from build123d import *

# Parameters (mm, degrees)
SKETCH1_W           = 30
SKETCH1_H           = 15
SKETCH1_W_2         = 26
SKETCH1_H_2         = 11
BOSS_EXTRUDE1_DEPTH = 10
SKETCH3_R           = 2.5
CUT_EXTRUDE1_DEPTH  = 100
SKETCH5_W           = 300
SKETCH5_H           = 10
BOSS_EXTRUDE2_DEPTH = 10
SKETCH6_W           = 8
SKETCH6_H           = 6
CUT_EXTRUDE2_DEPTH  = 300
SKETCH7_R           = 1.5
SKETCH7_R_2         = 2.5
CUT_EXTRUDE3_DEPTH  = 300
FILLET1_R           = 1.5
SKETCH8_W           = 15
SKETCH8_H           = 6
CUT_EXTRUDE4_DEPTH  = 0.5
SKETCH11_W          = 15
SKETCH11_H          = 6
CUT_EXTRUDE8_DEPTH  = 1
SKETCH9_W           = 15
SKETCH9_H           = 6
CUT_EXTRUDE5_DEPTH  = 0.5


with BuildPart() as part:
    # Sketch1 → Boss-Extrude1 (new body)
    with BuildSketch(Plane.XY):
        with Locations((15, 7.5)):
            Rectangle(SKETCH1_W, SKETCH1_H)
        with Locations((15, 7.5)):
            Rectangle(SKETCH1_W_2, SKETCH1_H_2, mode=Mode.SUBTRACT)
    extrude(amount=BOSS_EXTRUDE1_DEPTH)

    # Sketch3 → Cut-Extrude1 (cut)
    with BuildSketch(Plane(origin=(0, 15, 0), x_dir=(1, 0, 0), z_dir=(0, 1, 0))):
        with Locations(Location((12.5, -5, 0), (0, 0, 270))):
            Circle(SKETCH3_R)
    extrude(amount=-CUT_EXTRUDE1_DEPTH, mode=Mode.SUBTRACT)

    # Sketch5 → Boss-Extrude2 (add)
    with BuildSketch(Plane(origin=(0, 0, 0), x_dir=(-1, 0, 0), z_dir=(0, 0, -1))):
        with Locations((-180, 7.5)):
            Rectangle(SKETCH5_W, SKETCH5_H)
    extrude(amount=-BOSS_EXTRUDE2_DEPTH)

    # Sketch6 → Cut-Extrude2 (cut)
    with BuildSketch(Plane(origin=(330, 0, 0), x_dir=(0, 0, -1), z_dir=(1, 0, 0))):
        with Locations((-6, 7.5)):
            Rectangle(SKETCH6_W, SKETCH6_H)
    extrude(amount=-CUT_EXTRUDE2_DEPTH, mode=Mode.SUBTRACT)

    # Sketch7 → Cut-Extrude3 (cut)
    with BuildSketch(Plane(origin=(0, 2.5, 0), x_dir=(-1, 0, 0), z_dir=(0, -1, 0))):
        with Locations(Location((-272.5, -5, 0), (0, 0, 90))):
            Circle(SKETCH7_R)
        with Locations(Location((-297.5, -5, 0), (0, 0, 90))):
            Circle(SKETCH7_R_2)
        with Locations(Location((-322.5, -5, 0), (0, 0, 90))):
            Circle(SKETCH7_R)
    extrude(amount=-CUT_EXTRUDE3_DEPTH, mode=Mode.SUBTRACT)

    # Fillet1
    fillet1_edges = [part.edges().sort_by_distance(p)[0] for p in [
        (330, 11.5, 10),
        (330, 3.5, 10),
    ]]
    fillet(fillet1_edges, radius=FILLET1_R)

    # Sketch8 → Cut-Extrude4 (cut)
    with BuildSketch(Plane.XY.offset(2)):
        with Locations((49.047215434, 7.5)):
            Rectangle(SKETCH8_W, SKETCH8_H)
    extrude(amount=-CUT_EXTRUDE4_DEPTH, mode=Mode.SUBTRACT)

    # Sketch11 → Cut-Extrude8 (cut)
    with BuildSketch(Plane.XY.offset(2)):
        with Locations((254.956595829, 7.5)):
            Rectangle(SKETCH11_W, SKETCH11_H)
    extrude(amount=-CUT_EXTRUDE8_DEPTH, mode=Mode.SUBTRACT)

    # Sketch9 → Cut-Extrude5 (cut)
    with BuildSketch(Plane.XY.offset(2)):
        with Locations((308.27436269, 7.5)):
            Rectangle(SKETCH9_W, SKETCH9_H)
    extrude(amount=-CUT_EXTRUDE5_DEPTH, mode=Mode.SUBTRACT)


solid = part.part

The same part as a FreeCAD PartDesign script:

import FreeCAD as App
import Part
import Sketcher
Q = App.Units.Quantity


def edges_at(feature, points):
    """Names of the edges that pass closest to the given points."""
    edges = feature.Shape.Edges
    near = lambda p: min(range(len(edges)), key=lambda i: edges[i].distToShape(Part.Vertex(*p))[0])
    return sorted({f"Edge{near(p) + 1}" for p in points})


def add_polygon(sketch, points):
    """Adds a closed chain of lines whose ends are joined by coincident constraints."""
    first, n = sketch.GeometryCount, len(points)
    for a, b in zip(points, points[1:] + points[:1]):
        sketch.addGeometry(Part.LineSegment(App.Vector(*a, 0), App.Vector(*b, 0)), False)
    for i in range(n):
        sketch.addConstraint(Sketcher.Constraint("Coincident", first + i, 2, first + (i + 1) % n, 1))

doc = App.newDocument("Part")
params = doc.addObject("Spreadsheet::Sheet", "Params")
for row, (alias, value) in enumerate([
    ("sketch1_width", "30 mm"),
    ("sketch1_width2", "26 mm"),
    ("sketch1_height", "15 mm"),
    ("sketch1_height2", "11 mm"),
    ("pad1_length", "10 mm"),
    ("sketch2_diameter", "5 mm"),
    ("pocket1_length", "100 mm"),
    ("sketch3_width", "300 mm"),
    ("sketch3_height", "10 mm"),
    ("pad2_length", "10 mm"),
    ("sketch4_width", "6 mm"),
    ("sketch4_height", "8 mm"),
    ("pocket2_length", "300 mm"),
    ("sketch5_diameter", "3 mm"),
    ("sketch5_diameter2", "5 mm"),
    ("pocket3_length", "300 mm"),
    ("fillet_radius", "1.5 mm"),
    ("sketch6_width", "15 mm"),
    ("sketch6_height", "6 mm"),
    ("pocket4_length", "0.5 mm"),
    ("sketch7_width", "15 mm"),
    ("sketch7_height", "6 mm"),
    ("pocket5_length", "1 mm"),
    ("sketch8_width", "15 mm"),
    ("sketch8_height", "6 mm"),
    ("pocket6_length", "0.5 mm"),
], start=1):
    params.set(f"A{row}", alias)
    params.set(f"B{row}", "=" + value)
    params.setAlias(f"B{row}", alias)

body = doc.addObject("PartDesign::Body", "Body")

sketch1 = body.newObject("Sketcher::SketchObject", "Sketch")
sketch1.AttachmentSupport = (doc.getObject("XY_Plane"), [""])
sketch1.MapMode = "FlatFace"
add_polygon(sketch1, [(0, 15), (0, 0), (30, 0), (30, 15)])
add_polygon(sketch1, [(28, 2), (2, 2), (2, 13), (28, 13)])
sketch1.addConstraint(Sketcher.Constraint("Vertical", 0))
sketch1.addConstraint(Sketcher.Constraint("Horizontal", 1))
sketch1.addConstraint(Sketcher.Constraint("Vertical", 2))
sketch1.addConstraint(Sketcher.Constraint("Horizontal", 3))
sketch1.addConstraint(Sketcher.Constraint("Horizontal", 4))
sketch1.addConstraint(Sketcher.Constraint("Vertical", 5))
sketch1.addConstraint(Sketcher.Constraint("Horizontal", 6))
sketch1.addConstraint(Sketcher.Constraint("Vertical", 7))
sketch1.addConstraint(Sketcher.Constraint("Coincident", 0, 2, -1, 1))
sketch1.addConstraint(Sketcher.Constraint("DistanceX", 1, 1, 1, 2, Q("30 mm")))
sketch1.addConstraint(Sketcher.Constraint("DistanceX", 4, 2, 4, 1, Q("26 mm")))
sketch1.addConstraint(Sketcher.Constraint("DistanceY", 0, 2, 0, 1, Q("15 mm")))
sketch1.addConstraint(Sketcher.Constraint("DistanceY", 5, 1, 5, 2, Q("11 mm")))
sketch1.addConstraint(Sketcher.Constraint("DistanceX", -1, 1, 4, 2, Q("2 mm")))
sketch1.addConstraint(Sketcher.Constraint("DistanceY", -1, 1, 4, 2, Q("2 mm")))
sketch1.setExpression("Constraints[17]", "Params.sketch1_width")
sketch1.setExpression("Constraints[18]", "Params.sketch1_width2")
sketch1.setExpression("Constraints[19]", "Params.sketch1_height")
sketch1.setExpression("Constraints[20]", "Params.sketch1_height2")
pad1 = body.newObject("PartDesign::Pad", "Pad")
pad1.Profile = sketch1
pad1.setExpression("Length", "Params.pad1_length")

sketch2 = body.newObject("Sketcher::SketchObject", "Sketch001")
sketch2.AttachmentSupport = (doc.getObject("XZ_Plane"), [""])
sketch2.MapMode = "FlatFace"
sketch2.AttachmentOffset = App.Placement(App.Vector(0, 0, -15), App.Rotation())
sketch2.addGeometry(Part.Circle(App.Vector(12.5, 5, 0), App.Vector(0, 0, 1), 2.5), False)
sketch2.addConstraint(Sketcher.Constraint("Diameter", 0, Q("5 mm")))
sketch2.addConstraint(Sketcher.Constraint("DistanceY", -1, 1, 0, 3, Q("5 mm")))
sketch2.addConstraint(Sketcher.Constraint("DistanceX", -1, 1, 0, 3, Q("12.5 mm")))
sketch2.setExpression("Constraints[0]", "Params.sketch2_diameter")
pocket1 = body.newObject("PartDesign::Pocket", "Pocket")
pocket1.Profile = sketch2
pocket1.setExpression("Length", "Params.pocket1_length")
pocket1.Reversed = True

sketch3 = body.newObject("Sketcher::SketchObject", "Sketch002")
sketch3.AttachmentSupport = (doc.getObject("XY_Plane"), [""])
sketch3.MapMode = "FlatFace"
add_polygon(sketch3, [(330, 12), (330, 2), (30, 2), (30, 12)])
sketch3.addConstraint(Sketcher.Constraint("Vertical", 0))
sketch3.addConstraint(Sketcher.Constraint("Horizontal", 1))
sketch3.addConstraint(Sketcher.Constraint("Vertical", 2))
sketch3.addConstraint(Sketcher.Constraint("Horizontal", 3))
sketch3.addConstraint(Sketcher.Constraint("DistanceX", 1, 2, 1, 1, Q("300 mm")))
sketch3.addConstraint(Sketcher.Constraint("DistanceY", 0, 2, 0, 1, Q("10 mm")))
sketch3.addConstraint(Sketcher.Constraint("DistanceX", -1, 1, 0, 2, Q("330 mm")))
sketch3.addConstraint(Sketcher.Constraint("DistanceY", -1, 1, 0, 2, Q("2.5 mm")))
sketch3.setExpression("Constraints[8]", "Params.sketch3_width")
sketch3.setExpression("Constraints[9]", "Params.sketch3_height")
pad2 = body.newObject("PartDesign::Pad", "Pad001")
pad2.Profile = sketch3
pad2.setExpression("Length", "Params.pad2_length")

sketch4 = body.newObject("Sketcher::SketchObject", "Sketch003")
sketch4.AttachmentSupport = (doc.getObject("YZ_Plane"), [""])
sketch4.MapMode = "FlatFace"
sketch4.AttachmentOffset = App.Placement(App.Vector(0, 0, 330), App.Rotation())
add_polygon(sketch4, [(10, 10), (4, 10), (4, 2), (10, 2)])
sketch4.addConstraint(Sketcher.Constraint("Horizontal", 0))
sketch4.addConstraint(Sketcher.Constraint("Vertical", 1))
sketch4.addConstraint(Sketcher.Constraint("Horizontal", 2))
sketch4.addConstraint(Sketcher.Constraint("Vertical", 3))
sketch4.addConstraint(Sketcher.Constraint("DistanceX", 0, 2, 0, 1, Q("6 mm")))
sketch4.addConstraint(Sketcher.Constraint("DistanceY", 1, 2, 1, 1, Q("8 mm")))
sketch4.addConstraint(Sketcher.Constraint("DistanceY", -1, 1, 0, 2, Q("10 mm")))
sketch4.addConstraint(Sketcher.Constraint("DistanceX", -1, 1, 0, 2, Q("4.5 mm")))
sketch4.setExpression("Constraints[8]", "Params.sketch4_width")
sketch4.setExpression("Constraints[9]", "Params.sketch4_height")
pocket2 = body.newObject("PartDesign::Pocket", "Pocket001")
pocket2.Profile = sketch4
pocket2.setExpression("Length", "Params.pocket2_length")

sketch5 = body.newObject("Sketcher::SketchObject", "Sketch004")
sketch5.AttachmentSupport = (doc.getObject("XZ_Plane"), [""])
sketch5.MapMode = "FlatFace"
sketch5.AttachmentOffset = App.Placement(App.Vector(0, 0, -2.5), App.Rotation())
sketch5.addGeometry(Part.Circle(App.Vector(272.5, 5, 0), App.Vector(0, 0, 1), 1.5), False)
sketch5.addGeometry(Part.Circle(App.Vector(297.5, 5, 0), App.Vector(0, 0, 1), 2.5), False)
sketch5.addGeometry(Part.Circle(App.Vector(322.5, 5, 0), App.Vector(0, 0, 1), 1.5), False)
sketch5.addConstraint(Sketcher.Constraint("Equal", 0, 2))
sketch5.addConstraint(Sketcher.Constraint("Horizontal", 0, 3, 1, 3))
sketch5.addConstraint(Sketcher.Constraint("Horizontal", 1, 3, 2, 3))
sketch5.addConstraint(Sketcher.Constraint("Diameter", 0, Q("3 mm")))
sketch5.addConstraint(Sketcher.Constraint("Diameter", 1, Q("5 mm")))
sketch5.addConstraint(Sketcher.Constraint("DistanceY", -1, 1, 0, 3, Q("5 mm")))
sketch5.addConstraint(Sketcher.Constraint("DistanceX", 0, 3, 1, 3, Q("25 mm")))
sketch5.addConstraint(Sketcher.Constraint("DistanceX", 1, 3, 2, 3, Q("25 mm")))
sketch5.addConstraint(Sketcher.Constraint("DistanceX", -1, 1, 0, 3, Q("272.5 mm")))
sketch5.setExpression("Constraints[3]", "Params.sketch5_diameter")
sketch5.setExpression("Constraints[4]", "Params.sketch5_diameter2")
pocket3 = body.newObject("PartDesign::Pocket", "Pocket002")
pocket3.Profile = sketch5
pocket3.setExpression("Length", "Params.pocket3_length")
doc.recompute()

fillet = body.newObject("PartDesign::Fillet", "Fillet")
fillet.Base = (pocket3, edges_at(pocket3, [(330, 11.5, 10), (330, 3.5, 10)]))
fillet.setExpression("Radius", "Params.fillet_radius")

sketch6 = body.newObject("Sketcher::SketchObject", "Sketch005")
sketch6.AttachmentSupport = (doc.getObject("XY_Plane"), [""])
sketch6.MapMode = "FlatFace"
sketch6.AttachmentOffset = App.Placement(App.Vector(0, 0, 2), App.Rotation())
add_polygon(sketch6, [(42, 10), (42, 4), (57, 4), (57, 10)])
sketch6.addConstraint(Sketcher.Constraint("Vertical", 0))
sketch6.addConstraint(Sketcher.Constraint("Horizontal", 1))
sketch6.addConstraint(Sketcher.Constraint("Vertical", 2))
sketch6.addConstraint(Sketcher.Constraint("Horizontal", 3))
sketch6.addConstraint(Sketcher.Constraint("DistanceX", 1, 1, 1, 2, Q("15 mm")))
sketch6.addConstraint(Sketcher.Constraint("DistanceY", 0, 2, 0, 1, Q("6 mm")))
sketch6.addConstraint(Sketcher.Constraint("DistanceY", -1, 1, 0, 2, Q("4.5 mm")))
sketch6.addConstraint(Sketcher.Constraint("DistanceX", -1, 1, 0, 2, Q("41.547215 mm")))
sketch6.setExpression("Constraints[8]", "Params.sketch6_width")
sketch6.setExpression("Constraints[9]", "Params.sketch6_height")
pocket4 = body.newObject("PartDesign::Pocket", "Pocket003")
pocket4.Profile = sketch6
pocket4.setExpression("Length", "Params.pocket4_length")

sketch7 = body.newObject("Sketcher::SketchObject", "Sketch006")
sketch7.AttachmentSupport = (doc.getObject("XY_Plane"), [""])
sketch7.MapMode = "FlatFace"
sketch7.AttachmentOffset = App.Placement(App.Vector(0, 0, 2), App.Rotation())
add_polygon(sketch7, [(247, 10), (247, 4), (262, 4), (262, 10)])
sketch7.addConstraint(Sketcher.Constraint("Vertical", 0))
sketch7.addConstraint(Sketcher.Constraint("Horizontal", 1))
sketch7.addConstraint(Sketcher.Constraint("Vertical", 2))
sketch7.addConstraint(Sketcher.Constraint("Horizontal", 3))
sketch7.addConstraint(Sketcher.Constraint("DistanceX", 1, 1, 1, 2, Q("15 mm")))
sketch7.addConstraint(Sketcher.Constraint("DistanceY", 0, 2, 0, 1, Q("6 mm")))
sketch7.addConstraint(Sketcher.Constraint("DistanceY", -1, 1, 0, 2, Q("4.5 mm")))
sketch7.addConstraint(Sketcher.Constraint("DistanceX", -1, 1, 0, 2, Q("247.456596 mm")))
sketch7.setExpression("Constraints[8]", "Params.sketch7_width")
sketch7.setExpression("Constraints[9]", "Params.sketch7_height")
pocket5 = body.newObject("PartDesign::Pocket", "Pocket004")
pocket5.Profile = sketch7
pocket5.setExpression("Length", "Params.pocket5_length")

sketch8 = body.newObject("Sketcher::SketchObject", "Sketch007")
sketch8.AttachmentSupport = (doc.getObject("XY_Plane"), [""])
sketch8.MapMode = "FlatFace"
sketch8.AttachmentOffset = App.Placement(App.Vector(0, 0, 2), App.Rotation())
add_polygon(sketch8, [(301, 10), (301, 4), (316, 4), (316, 10)])
sketch8.addConstraint(Sketcher.Constraint("Vertical", 0))
sketch8.addConstraint(Sketcher.Constraint("Horizontal", 1))
sketch8.addConstraint(Sketcher.Constraint("Vertical", 2))
sketch8.addConstraint(Sketcher.Constraint("Horizontal", 3))
sketch8.addConstraint(Sketcher.Constraint("DistanceX", 1, 1, 1, 2, Q("15 mm")))
sketch8.addConstraint(Sketcher.Constraint("DistanceY", 0, 2, 0, 1, Q("6 mm")))
sketch8.addConstraint(Sketcher.Constraint("DistanceY", -1, 1, 0, 2, Q("4.5 mm")))
sketch8.addConstraint(Sketcher.Constraint("DistanceX", -1, 1, 0, 2, Q("300.774363 mm")))
sketch8.setExpression("Constraints[8]", "Params.sketch8_width")
sketch8.setExpression("Constraints[9]", "Params.sketch8_height")
pocket6 = body.newObject("PartDesign::Pocket", "Pocket005")
pocket6.Profile = sketch8
pocket6.setExpression("Length", "Params.pocket6_length")

doc.recompute()
